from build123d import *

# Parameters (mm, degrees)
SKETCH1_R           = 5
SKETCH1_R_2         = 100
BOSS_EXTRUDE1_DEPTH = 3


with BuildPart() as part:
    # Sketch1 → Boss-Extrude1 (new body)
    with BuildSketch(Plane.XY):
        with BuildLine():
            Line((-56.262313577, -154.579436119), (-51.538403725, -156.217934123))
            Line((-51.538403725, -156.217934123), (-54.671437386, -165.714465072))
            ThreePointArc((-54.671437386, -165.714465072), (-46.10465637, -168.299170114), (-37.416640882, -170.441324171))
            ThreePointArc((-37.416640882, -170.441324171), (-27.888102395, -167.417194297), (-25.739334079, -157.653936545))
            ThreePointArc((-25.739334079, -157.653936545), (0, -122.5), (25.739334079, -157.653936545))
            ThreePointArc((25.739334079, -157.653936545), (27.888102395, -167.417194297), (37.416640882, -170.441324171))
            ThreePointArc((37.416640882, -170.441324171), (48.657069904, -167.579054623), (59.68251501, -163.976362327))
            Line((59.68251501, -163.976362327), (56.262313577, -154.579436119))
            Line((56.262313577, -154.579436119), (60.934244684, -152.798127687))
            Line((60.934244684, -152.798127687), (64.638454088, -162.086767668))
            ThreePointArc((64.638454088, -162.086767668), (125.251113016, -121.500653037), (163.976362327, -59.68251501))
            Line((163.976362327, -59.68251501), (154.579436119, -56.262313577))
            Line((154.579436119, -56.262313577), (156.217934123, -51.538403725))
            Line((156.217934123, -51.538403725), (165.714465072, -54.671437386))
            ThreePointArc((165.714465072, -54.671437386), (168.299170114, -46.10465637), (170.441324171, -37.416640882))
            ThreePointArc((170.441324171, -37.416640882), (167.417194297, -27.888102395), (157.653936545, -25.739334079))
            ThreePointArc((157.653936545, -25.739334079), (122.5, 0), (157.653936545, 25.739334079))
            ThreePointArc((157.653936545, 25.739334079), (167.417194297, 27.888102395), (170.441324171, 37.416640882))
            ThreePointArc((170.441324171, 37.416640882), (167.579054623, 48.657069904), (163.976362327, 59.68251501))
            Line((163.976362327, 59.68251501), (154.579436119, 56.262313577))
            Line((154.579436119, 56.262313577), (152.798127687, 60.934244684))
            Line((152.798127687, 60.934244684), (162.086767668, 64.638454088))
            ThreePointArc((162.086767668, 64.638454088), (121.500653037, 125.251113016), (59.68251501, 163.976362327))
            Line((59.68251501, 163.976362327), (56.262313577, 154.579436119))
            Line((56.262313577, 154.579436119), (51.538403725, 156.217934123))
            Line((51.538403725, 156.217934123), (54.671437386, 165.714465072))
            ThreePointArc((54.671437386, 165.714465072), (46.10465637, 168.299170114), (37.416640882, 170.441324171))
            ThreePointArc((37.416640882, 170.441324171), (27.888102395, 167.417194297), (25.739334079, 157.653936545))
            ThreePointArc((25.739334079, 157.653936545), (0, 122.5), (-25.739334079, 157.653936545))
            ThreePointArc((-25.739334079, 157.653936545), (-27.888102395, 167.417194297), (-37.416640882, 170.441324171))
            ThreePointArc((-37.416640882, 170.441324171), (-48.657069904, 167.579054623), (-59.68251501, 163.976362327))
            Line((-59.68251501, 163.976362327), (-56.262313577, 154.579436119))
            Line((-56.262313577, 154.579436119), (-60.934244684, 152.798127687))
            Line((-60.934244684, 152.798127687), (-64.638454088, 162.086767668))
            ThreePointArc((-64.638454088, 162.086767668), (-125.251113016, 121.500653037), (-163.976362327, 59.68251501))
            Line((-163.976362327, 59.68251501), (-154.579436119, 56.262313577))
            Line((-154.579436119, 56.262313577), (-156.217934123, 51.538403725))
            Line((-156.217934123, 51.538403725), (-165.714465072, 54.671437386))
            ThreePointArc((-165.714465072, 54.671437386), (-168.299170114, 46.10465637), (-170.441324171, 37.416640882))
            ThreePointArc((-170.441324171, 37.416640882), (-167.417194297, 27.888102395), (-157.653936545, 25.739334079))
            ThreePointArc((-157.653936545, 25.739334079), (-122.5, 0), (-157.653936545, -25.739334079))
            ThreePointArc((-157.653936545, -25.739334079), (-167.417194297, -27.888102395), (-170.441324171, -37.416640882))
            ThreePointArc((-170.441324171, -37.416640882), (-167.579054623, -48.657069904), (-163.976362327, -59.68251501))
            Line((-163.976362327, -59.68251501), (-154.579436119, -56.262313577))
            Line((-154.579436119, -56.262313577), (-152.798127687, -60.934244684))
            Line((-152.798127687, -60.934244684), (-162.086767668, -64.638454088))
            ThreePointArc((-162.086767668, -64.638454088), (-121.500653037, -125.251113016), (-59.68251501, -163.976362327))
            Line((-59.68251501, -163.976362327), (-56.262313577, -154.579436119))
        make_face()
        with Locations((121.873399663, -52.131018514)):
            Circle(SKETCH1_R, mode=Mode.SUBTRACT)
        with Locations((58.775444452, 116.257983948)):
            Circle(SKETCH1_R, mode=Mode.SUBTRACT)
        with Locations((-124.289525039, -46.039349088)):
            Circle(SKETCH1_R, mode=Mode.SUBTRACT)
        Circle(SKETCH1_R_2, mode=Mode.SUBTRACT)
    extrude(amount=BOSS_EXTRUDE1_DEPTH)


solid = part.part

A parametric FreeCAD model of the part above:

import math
import FreeCAD as App
import Part
import Sketcher

V = App.Vector
Q = App.Units.Quantity

doc = App.newDocument("Part")
params = doc.addObject("Spreadsheet::Sheet", "Params")
for row, (alias, value) in enumerate([
    ("sketch1_diameter", "10 mm"),
    ("sketch1_diameter2", "200 mm"),
    ("sketch1_radius", "10 mm"),
    ("sketch1_radius2", "27 mm"),
    ("sketch1_radius3", "174.5 mm"),
    ("pad1_length", "3 mm"),
], start=1):
    params.set(f"A{row}", alias)
    params.set(f"B{row}", "=" + value)
    params.setAlias(f"B{row}", alias)

body = doc.addObject("PartDesign::Body", "Body")

# Sketch on XY plane
sketch1 = body.newObject("Sketcher::SketchObject", "Sketch")
sketch1.AttachmentSupport = (doc.getObject("XY_Plane"), [""])
sketch1.MapMode = "FlatFace"
sketch1.addGeometry(Part.LineSegment(V(-56.3, -154.6, 0), V(-51.5, -156.2, 0)), False)
sketch1.addGeometry(Part.LineSegment(V(-51.5, -156.2, 0), V(-54.7, -165.7, 0)), False)
sketch1.addGeometry(Part.ArcOfCircle(Part.Circle(V(0, 0, 0), V(0, 0, 1), 174.5), math.radians(-108.26), math.radians(-102.38)), False)
sketch1.addGeometry(Part.ArcOfCircle(Part.Circle(V(-35.3, -160.7, 0), V(0, 0, 1), 10), math.radians(-102), math.radians(18)), False)
sketch1.addGeometry(Part.ArcOfCircle(Part.Circle(V(0, -149.5, 0), V(0, 0, 1), 27), math.radians(-18), math.radians(198)), False)
sketch1.addGeometry(Part.ArcOfCircle(Part.Circle(V(35.3, -160.7, 0), V(0, 0, 1), 10), math.radians(162), math.radians(282)), False)
sketch1.addGeometry(Part.ArcOfCircle(Part.Circle(V(0, 0, 0), V(0, 0, 1), 174.5), math.radians(-77.62), math.radians(-70)), False)
sketch1.addGeometry(Part.LineSegment(V(59.7, -164, 0), V(56.3, -154.6, 0)), False)
sketch1.addGeometry(Part.LineSegment(V(56.3, -154.6, 0), V(60.9, -152.8, 0)), False)
sketch1.addGeometry(Part.LineSegment(V(60.9, -152.8, 0), V(64.6, -162.1, 0)), False)
sketch1.addGeometry(Part.ArcOfCircle(Part.Circle(V(0, 0, 0), V(0, 0, 1), 174.5), math.radians(-68), math.radians(-20)), False)
sketch1.addGeometry(Part.LineSegment(V(164, -59.7, 0), V(154.6, -56.3, 0)), False)
sketch1.addGeometry(Part.LineSegment(V(154.6, -56.3, 0), V(156.2, -51.5, 0)), False)
sketch1.addGeometry(Part.LineSegment(V(156.2, -51.5, 0), V(165.7, -54.7, 0)), False)
sketch1.addGeometry(Part.ArcOfCircle(Part.Circle(V(0, 0, 0), V(0, 0, 1), 174.5), math.radians(-18.26), math.radians(-12.38)), False)
sketch1.addGeometry(Part.ArcOfCircle(Part.Circle(V(160.7, -35.3, 0), V(0, 0, 1), 10), math.radians(-12), math.radians(108)), False)
sketch1.addGeometry(Part.ArcOfCircle(Part.Circle(V(149.5, 0, 0), V(0, 0, 1), 27), math.radians(72), math.radians(288)), False)
sketch1.addGeometry(Part.ArcOfCircle(Part.Circle(V(160.7, 35.3, 0), V(0, 0, 1), 10), math.radians(-108), math.radians(12)), False)
sketch1.addGeometry(Part.ArcOfCircle(Part.Circle(V(0, 0, 0), V(0, 0, 1), 174.5), math.radians(12.38), math.radians(20)), False)
sketch1.addGeometry(Part.LineSegment(V(164, 59.7, 0), V(154.6, 56.3, 0)), False)
sketch1.addGeometry(Part.LineSegment(V(154.6, 56.3, 0), V(152.8, 60.9, 0)), False)
sketch1.addGeometry(Part.LineSegment(V(152.8, 60.9, 0), V(162.1, 64.6, 0)), False)
sketch1.addGeometry(Part.ArcOfCircle(Part.Circle(V(0, 0, 0), V(0, 0, 1), 174.5), math.radians(22), math.radians(70)), False)
sketch1.addGeometry(Part.LineSegment(V(59.7, 164, 0), V(56.3, 154.6, 0)), False)
sketch1.addGeometry(Part.LineSegment(V(56.3, 154.6, 0), V(51.5, 156.2, 0)), False)
sketch1.addGeometry(Part.LineSegment(V(51.5, 156.2, 0), V(54.7, 165.7, 0)), False)
sketch1.addGeometry(Part.ArcOfCircle(Part.Circle(V(0, 0, 0), V(0, 0, 1), 174.5), math.radians(71.74), math.radians(77.62)), False)
sketch1.addGeometry(Part.ArcOfCircle(Part.Circle(V(35.3, 160.7, 0), V(0, 0, 1), 10), math.radians(78), math.radians(198)), False)
sketch1.addGeometry(Part.ArcOfCircle(Part.Circle(V(0, 149.5, 0), V(0, 0, 1), 27), math.radians(162), math.radians(378)), False)
sketch1.addGeometry(Part.ArcOfCircle(Part.Circle(V(-35.3, 160.7, 0), V(0, 0, 1), 10), math.radians(-18), math.radians(102)), False)
sketch1.addGeometry(Part.ArcOfCircle(Part.Circle(V(0, 0, 0), V(0, 0, 1), 174.5), math.radians(102.38), math.radians(110)), False)
sketch1.addGeometry(Part.LineSegment(V(-59.7, 164, 0), V(-56.3, 154.6, 0)), False)
sketch1.addGeometry(Part.LineSegment(V(-56.3, 154.6, 0), V(-60.9, 152.8, 0)), False)
sketch1.addGeometry(Part.LineSegment(V(-60.9, 152.8, 0), V(-64.6, 162.1, 0)), False)
sketch1.addGeometry(Part.ArcOfCircle(Part.Circle(V(0, 0, 0), V(0, 0, 1), 174.5), math.radians(112), math.radians(160)), False)
sketch1.addGeometry(Part.LineSegment(V(-164, 59.7, 0), V(-154.6, 56.3, 0)), False)
sketch1.addGeometry(Part.LineSegment(V(-154.6, 56.3, 0), V(-156.2, 51.5, 0)), False)
sketch1.addGeometry(Part.LineSegment(V(-156.2, 51.5, 0), V(-165.7, 54.7, 0)), False)
sketch1.addGeometry(Part.ArcOfCircle(Part.Circle(V(0, 0, 0), V(0, 0, 1), 174.5), math.radians(161.74), math.radians(167.62)), False)
sketch1.addGeometry(Part.ArcOfCircle(Part.Circle(V(-160.7, 35.3, 0), V(0, 0, 1), 10), math.radians(168), math.radians(288)), False)
sketch1.addGeometry(Part.ArcOfCircle(Part.Circle(V(-149.5, 0, 0), V(0, 0, 1), 27), math.radians(-108), math.radians(108)), False)
sketch1.addGeometry(Part.ArcOfCircle(Part.Circle(V(-160.7, -35.3, 0), V(0, 0, 1), 10), math.radians(72), math.radians(192)), False)
sketch1.addGeometry(Part.ArcOfCircle(Part.Circle(V(0, 0, 0), V(0, 0, 1), 174.5), math.radians(-167.62), math.radians(-160)), False)
sketch1.addGeometry(Part.LineSegment(V(-164, -59.7, 0), V(-154.6, -56.3, 0)), False)
sketch1.addGeometry(Part.LineSegment(V(-154.6, -56.3, 0), V(-152.8, -60.9, 0)), False)
sketch1.addGeometry(Part.LineSegment(V(-152.8, -60.9, 0), V(-162.1, -64.6, 0)), False)
sketch1.addGeometry(Part.ArcOfCircle(Part.Circle(V(0, 0, 0), V(0, 0, 1), 174.5), math.radians(-158), math.radians(-110)), False)
sketch1.addGeometry(Part.LineSegment(V(-59.7, -164, 0), V(-56.3, -154.6, 0)), False)
sketch1.addGeometry(Part.Circle(V(-124.3, -46, 0), V(0, 0, 1), 5), False)
sketch1.addGeometry(Part.Circle(V(121.9, -52.1, 0), V(0, 0, 1), 5), False)
sketch1.addGeometry(Part.Circle(V(0, 0, 0), V(0, 0, 1), 100), False)
sketch1.addGeometry(Part.Circle(V(58.8, 116.3, 0), V(0, 0, 1), 5), False)
sketch1.addConstraint(Sketcher.Constraint("Coincident", 0, 2, 1, 1))
sketch1.addConstraint(Sketcher.Constraint("Coincident", 1, 2, 2, 1))
sketch1.addConstraint(Sketcher.Constraint("Tangent", 2, 2, 3, 1))
sketch1.addConstraint(Sketcher.Constraint("Tangent", 3, 2, 4, 2))
sketch1.addConstraint(Sketcher.Constraint("Tangent", 4, 1, 5, 1))
sketch1.addConstraint(Sketcher.Constraint("Tangent", 5, 2, 6, 1))
sketch1.addConstraint(Sketcher.Constraint("Coincident", 6, 2, 7, 1))
sketch1.addConstraint(Sketcher.Constraint("Coincident", 7, 2, 8, 1))
sketch1.addConstraint(Sketcher.Constraint("Coincident", 8, 2, 9, 1))
sketch1.addConstraint(Sketcher.Constraint("Coincident", 9, 2, 10, 1))
sketch1.addConstraint(Sketcher.Constraint("Coincident", 10, 2, 11, 1))
sketch1.addConstraint(Sketcher.Constraint("Coincident", 11, 2, 12, 1))
sketch1.addConstraint(Sketcher.Constraint("Coincident", 12, 2, 13, 1))
sketch1.addConstraint(Sketcher.Constraint("Coincident", 13, 2, 14, 1))
sketch1.addConstraint(Sketcher.Constraint("Tangent", 14, 2, 15, 1))
sketch1.addConstraint(Sketcher.Constraint("Tangent", 15, 2, 16, 2))
sketch1.addConstraint(Sketcher.Constraint("Tangent", 16, 1, 17, 1))
sketch1.addConstraint(Sketcher.Constraint("Tangent", 17, 2, 18, 1))
sketch1.addConstraint(Sketcher.Constraint("Coincident", 18, 2, 19, 1))
sketch1.addConstraint(Sketcher.Constraint("Coincident", 19, 2, 20, 1))
sketch1.addConstraint(Sketcher.Constraint("Coincident", 20, 2, 21, 1))
sketch1.addConstraint(Sketcher.Constraint("Coincident", 21, 2, 22, 1))
sketch1.addConstraint(Sketcher.Constraint("Coincident", 22, 2, 23, 1))
sketch1.addConstraint(Sketcher.Constraint("Coincident", 23, 2, 24, 1))
sketch1.addConstraint(Sketcher.Constraint("Coincident", 24, 2, 25, 1))
sketch1.addConstraint(Sketcher.Constraint("Coincident", 25, 2, 26, 1))
sketch1.addConstraint(Sketcher.Constraint("Tangent", 26, 2, 27, 1))
sketch1.addConstraint(Sketcher.Constraint("Tangent", 27, 2, 28, 2))
sketch1.addConstraint(Sketcher.Constraint("Tangent", 28, 1, 29, 1))
sketch1.addConstraint(Sketcher.Constraint("Tangent", 29, 2, 30, 1))
sketch1.addConstraint(Sketcher.Constraint("Coincident", 30, 2, 31, 1))
sketch1.addConstraint(Sketcher.Constraint("Coincident", 31, 2, 32, 1))
sketch1.addConstraint(Sketcher.Constraint("Coincident", 32, 2, 33, 1))
sketch1.addConstraint(Sketcher.Constraint("Coincident", 33, 2, 34, 1))
sketch1.addConstraint(Sketcher.Constraint("Coincident", 34, 2, 35, 1))
sketch1.addConstraint(Sketcher.Constraint("Coincident", 35, 2, 36, 1))
sketch1.addConstraint(Sketcher.Constraint("Coincident", 36, 2, 37, 1))
sketch1.addConstraint(Sketcher.Constraint("Coincident", 37, 2, 38, 1))
sketch1.addConstraint(Sketcher.Constraint("Tangent", 38, 2, 39, 1))
sketch1.addConstraint(Sketcher.Constraint("Tangent", 39, 2, 40, 2))
sketch1.addConstraint(Sketcher.Constraint("Tangent", 40, 1, 41, 1))
sketch1.addConstraint(Sketcher.Constraint("Tangent", 41, 2, 42, 1))
sketch1.addConstraint(Sketcher.Constraint("Coincident", 42, 2, 43, 1))
sketch1.addConstraint(Sketcher.Constraint("Coincident", 43, 2, 44, 1))
sketch1.addConstraint(Sketcher.Constraint("Coincident", 44, 2, 45, 1))
sketch1.addConstraint(Sketcher.Constraint("Coincident", 45, 2, 46, 1))
sketch1.addConstraint(Sketcher.Constraint("Coincident", 46, 2, 47, 1))
sketch1.addConstraint(Sketcher.Constraint("Coincident", 47, 2, 0, 1))
sketch1.addConstraint(Sketcher.Constraint("Coincident", 2, 3, -1, 1))
sketch1.addConstraint(Sketcher.Constraint("Coincident", 6, 3, -1, 1))
sketch1.addConstraint(Sketcher.Constraint("Coincident", 10, 3, -1, 1))
sketch1.addConstraint(Sketcher.Constraint("Coincident", 14, 3, -1, 1))
sketch1.addConstraint(Sketcher.Constraint("Coincident", 18, 3, -1, 1))
sketch1.addConstraint(Sketcher.Constraint("Coincident", 22, 3, -1, 1))
sketch1.addConstraint(Sketcher.Constraint("Coincident", 26, 3, -1, 1))
sketch1.addConstraint(Sketcher.Constraint("Coincident", 30, 3, -1, 1))
sketch1.addConstraint(Sketcher.Constraint("Coincident", 34, 3, -1, 1))
sketch1.addConstraint(Sketcher.Constraint("Coincident", 38, 3, -1, 1))
sketch1.addConstraint(Sketcher.Constraint("Coincident", 42, 3, -1, 1))
sketch1.addConstraint(Sketcher.Constraint("Coincident", 46, 3, -1, 1))
sketch1.addConstraint(Sketcher.Constraint("Coincident", 50, 3, -1, 1))
sketch1.addConstraint(Sketcher.Constraint("Equal", 3, 5))
sketch1.addConstraint(Sketcher.Constraint("Equal", 2, 6))
sketch1.addConstraint(Sketcher.Constraint("Equal", 6, 10))
sketch1.addConstraint(Sketcher.Constraint("Equal", 10, 14))
sketch1.addConstraint(Sketcher.Constraint("Equal", 5, 15))
sketch1.addConstraint(Sketcher.Constraint("Equal", 4, 16))
sketch1.addConstraint(Sketcher.Constraint("Equal", 15, 17))
sketch1.addConstraint(Sketcher.Constraint("Equal", 14, 18))
sketch1.addConstraint(Sketcher.Constraint("Equal", 18, 22))
sketch1.addConstraint(Sketcher.Constraint("Equal", 22, 26))
sketch1.addConstraint(Sketcher.Constraint("Equal", 17, 27))
sketch1.addConstraint(Sketcher.Constraint("Equal", 16, 28))
sketch1.addConstraint(Sketcher.Constraint("Equal", 27, 29))
sketch1.addConstraint(Sketcher.Constraint("Equal", 26, 30))
sketch1.addConstraint(Sketcher.Constraint("Equal", 30, 34))
sketch1.addConstraint(Sketcher.Constraint("Equal", 34, 38))
sketch1.addConstraint(Sketcher.Constraint("Equal", 29, 39))
sketch1.addConstraint(Sketcher.Constraint("Equal", 28, 40))
sketch1.addConstraint(Sketcher.Constraint("Equal", 39, 41))
sketch1.addConstraint(Sketcher.Constraint("Equal", 38, 42))
sketch1.addConstraint(Sketcher.Constraint("Equal", 42, 46))
sketch1.addConstraint(Sketcher.Constraint("Equal", 48, 49))
sketch1.addConstraint(Sketcher.Constraint("Equal", 49, 51))
sketch1.addConstraint(Sketcher.Constraint("Symmetric", 4, 3, 28, 3, -1, 1))
sketch1.addConstraint(Sketcher.Constraint("Symmetric", 16, 3, 40, 3, -1, 1))
sketch1.addConstraint(Sketcher.Constraint("Symmetric", 0, 2, 24, 2, -1, 1))
sketch1.addConstraint(Sketcher.Constraint("Symmetric", 7, 2, 31, 2, -1, 1))
sketch1.addConstraint(Sketcher.Constraint("Symmetric", 8, 2, 32, 2, -1, 1))
sketch1.addConstraint(Sketcher.Constraint("Symmetric", 11, 2, 35, 2, -1, 1))
sketch1.addConstraint(Sketcher.Constraint("Symmetric", 12, 2, 36, 2, -1, 1))
sketch1.addConstraint(Sketcher.Constraint("Symmetric", 19, 2, 43, 2, -1, 1))
sketch1.addConstraint(Sketcher.Constraint("Symmetric", 20, 2, 44, 2, -1, 1))
sketch1.addConstraint(Sketcher.Constraint("Symmetric", 23, 2, 47, 2, -1, 1))
sketch1.addConstraint(Sketcher.Constraint("Symmetric", 23, 2, 31, 2, -2))
sketch1.addConstraint(Sketcher.Constraint("Symmetric", 19, 2, 35, 2, -2))
sketch1.addConstraint(Sketcher.Constraint("PointOnObject", 4, 3, -2))
sketch1.addConstraint(Sketcher.Constraint("PointOnObject", 16, 3, -1))
sketch1.addConstraint(Sketcher.Constraint("Perpendicular", 0, 12))
sketch1.addConstraint(Sketcher.Constraint("Perpendicular", 1, 13))
sketch1.addConstraint(Sketcher.Constraint("Perpendicular", 7, 19))
sketch1.addConstraint(Sketcher.Constraint("Perpendicular", 8, 20))
sketch1.addConstraint(Sketcher.Constraint("Perpendicular", 9, 21))
sketch1.addConstraint(Sketcher.Constraint("Perpendicular", 11, 23))
sketch1.addConstraint(Sketcher.Constraint("Perpendicular", 13, 25))
sketch1.addConstraint(Sketcher.Constraint("Perpendicular", 19, 31))
sketch1.addConstraint(Sketcher.Constraint("Perpendicular", 21, 33))
sketch1.addConstraint(Sketcher.Constraint("Perpendicular", 23, 35))
sketch1.addConstraint(Sketcher.Constraint("Perpendicular", 25, 37))
sketch1.addConstraint(Sketcher.Constraint("Perpendicular", 31, 43))
sketch1.addConstraint(Sketcher.Constraint("Perpendicular", 33, 45))
sketch1.addConstraint(Sketcher.Constraint("Perpendicular", 35, 47))
sketch1.addConstraint(Sketcher.Constraint("Horizontal", 22, 2, 30, 2))
sketch1.addConstraint(Sketcher.Constraint("Equal", 1, 7))
sketch1.addConstraint(Sketcher.Constraint("Equal", 0, 8))
sketch1.addConstraint(Sketcher.Constraint("Equal", 7, 9))
sketch1.addConstraint(Sketcher.Constraint("Equal", 9, 11))
sketch1.addConstraint(Sketcher.Constraint("Equal", 8, 12))
sketch1.addConstraint(Sketcher.Constraint("Equal", 11, 13))
sketch1.addConstraint(Sketcher.Constraint("Equal", 12, 20))
sketch1.addConstraint(Sketcher.Constraint("Diameter", 48, 10.0))
sketch1.addConstraint(Sketcher.Constraint("Diameter", 50, 200.0))
sketch1.addConstraint(Sketcher.Constraint("Radius", 3, 10.0))
sketch1.addConstraint(Sketcher.Constraint("Radius", 4, 27.0))
sketch1.addConstraint(Sketcher.Constraint("Radius", 2, 174.5))
sketch1.addConstraint(Sketcher.Constraint("Angle", 7, Q("110 deg")))
sketch1.addConstraint(Sketcher.Constraint("Distance", 0, 5.0))
sketch1.addConstraint(Sketcher.Constraint("Distance", 1, 10.0))
sketch1.addConstraint(Sketcher.Constraint("DistanceY", 4, 3, -1, 1, 149.5))
sketch1.addConstraint(Sketcher.Constraint("DistanceX", -1, 1, 16, 3, 149.5))
sketch1.addConstraint(Sketcher.Constraint("DistanceX", -1, 1, 49, 3, 121.8734))
sketch1.addConstraint(Sketcher.Constraint("DistanceY", 48, 3, -1, 1, 46.039349))
sketch1.addConstraint(Sketcher.Constraint("DistanceY", 49, 3, -1, 1, 52.131019))
sketch1.addConstraint(Sketcher.Constraint("DistanceX", 48, 3, -1, 1, 124.289525))
sketch1.addConstraint(Sketcher.Constraint("DistanceX", -1, 1, 51, 3, 58.775444))
sketch1.addConstraint(Sketcher.Constraint("DistanceY", -1, 1, 51, 3, 116.257984))
sketch1.addConstraint(Sketcher.Constraint("DistanceX", 0, 2, -1, 1, 51.538404))
sketch1.addConstraint(Sketcher.Constraint("DistanceX", 1, 2, -1, 1, 54.671437))
sketch1.addConstraint(Sketcher.Constraint("DistanceX", -1, 1, 9, 2, 64.638454))
sketch1.setExpression("Constraints[120]", "Params.sketch1_diameter")
sketch1.setExpression("Constraints[121]", "Params.sketch1_diameter2")
sketch1.setExpression("Constraints[122]", "Params.sketch1_radius")
sketch1.setExpression("Constraints[123]", "Params.sketch1_radius2")
sketch1.setExpression("Constraints[124]", "Params.sketch1_radius3")
pad1 = body.newObject("PartDesign::Pad", "Pad")
pad1.Profile = sketch1
pad1.setExpression("Length", "Params.pad1_length")

doc.recompute()
